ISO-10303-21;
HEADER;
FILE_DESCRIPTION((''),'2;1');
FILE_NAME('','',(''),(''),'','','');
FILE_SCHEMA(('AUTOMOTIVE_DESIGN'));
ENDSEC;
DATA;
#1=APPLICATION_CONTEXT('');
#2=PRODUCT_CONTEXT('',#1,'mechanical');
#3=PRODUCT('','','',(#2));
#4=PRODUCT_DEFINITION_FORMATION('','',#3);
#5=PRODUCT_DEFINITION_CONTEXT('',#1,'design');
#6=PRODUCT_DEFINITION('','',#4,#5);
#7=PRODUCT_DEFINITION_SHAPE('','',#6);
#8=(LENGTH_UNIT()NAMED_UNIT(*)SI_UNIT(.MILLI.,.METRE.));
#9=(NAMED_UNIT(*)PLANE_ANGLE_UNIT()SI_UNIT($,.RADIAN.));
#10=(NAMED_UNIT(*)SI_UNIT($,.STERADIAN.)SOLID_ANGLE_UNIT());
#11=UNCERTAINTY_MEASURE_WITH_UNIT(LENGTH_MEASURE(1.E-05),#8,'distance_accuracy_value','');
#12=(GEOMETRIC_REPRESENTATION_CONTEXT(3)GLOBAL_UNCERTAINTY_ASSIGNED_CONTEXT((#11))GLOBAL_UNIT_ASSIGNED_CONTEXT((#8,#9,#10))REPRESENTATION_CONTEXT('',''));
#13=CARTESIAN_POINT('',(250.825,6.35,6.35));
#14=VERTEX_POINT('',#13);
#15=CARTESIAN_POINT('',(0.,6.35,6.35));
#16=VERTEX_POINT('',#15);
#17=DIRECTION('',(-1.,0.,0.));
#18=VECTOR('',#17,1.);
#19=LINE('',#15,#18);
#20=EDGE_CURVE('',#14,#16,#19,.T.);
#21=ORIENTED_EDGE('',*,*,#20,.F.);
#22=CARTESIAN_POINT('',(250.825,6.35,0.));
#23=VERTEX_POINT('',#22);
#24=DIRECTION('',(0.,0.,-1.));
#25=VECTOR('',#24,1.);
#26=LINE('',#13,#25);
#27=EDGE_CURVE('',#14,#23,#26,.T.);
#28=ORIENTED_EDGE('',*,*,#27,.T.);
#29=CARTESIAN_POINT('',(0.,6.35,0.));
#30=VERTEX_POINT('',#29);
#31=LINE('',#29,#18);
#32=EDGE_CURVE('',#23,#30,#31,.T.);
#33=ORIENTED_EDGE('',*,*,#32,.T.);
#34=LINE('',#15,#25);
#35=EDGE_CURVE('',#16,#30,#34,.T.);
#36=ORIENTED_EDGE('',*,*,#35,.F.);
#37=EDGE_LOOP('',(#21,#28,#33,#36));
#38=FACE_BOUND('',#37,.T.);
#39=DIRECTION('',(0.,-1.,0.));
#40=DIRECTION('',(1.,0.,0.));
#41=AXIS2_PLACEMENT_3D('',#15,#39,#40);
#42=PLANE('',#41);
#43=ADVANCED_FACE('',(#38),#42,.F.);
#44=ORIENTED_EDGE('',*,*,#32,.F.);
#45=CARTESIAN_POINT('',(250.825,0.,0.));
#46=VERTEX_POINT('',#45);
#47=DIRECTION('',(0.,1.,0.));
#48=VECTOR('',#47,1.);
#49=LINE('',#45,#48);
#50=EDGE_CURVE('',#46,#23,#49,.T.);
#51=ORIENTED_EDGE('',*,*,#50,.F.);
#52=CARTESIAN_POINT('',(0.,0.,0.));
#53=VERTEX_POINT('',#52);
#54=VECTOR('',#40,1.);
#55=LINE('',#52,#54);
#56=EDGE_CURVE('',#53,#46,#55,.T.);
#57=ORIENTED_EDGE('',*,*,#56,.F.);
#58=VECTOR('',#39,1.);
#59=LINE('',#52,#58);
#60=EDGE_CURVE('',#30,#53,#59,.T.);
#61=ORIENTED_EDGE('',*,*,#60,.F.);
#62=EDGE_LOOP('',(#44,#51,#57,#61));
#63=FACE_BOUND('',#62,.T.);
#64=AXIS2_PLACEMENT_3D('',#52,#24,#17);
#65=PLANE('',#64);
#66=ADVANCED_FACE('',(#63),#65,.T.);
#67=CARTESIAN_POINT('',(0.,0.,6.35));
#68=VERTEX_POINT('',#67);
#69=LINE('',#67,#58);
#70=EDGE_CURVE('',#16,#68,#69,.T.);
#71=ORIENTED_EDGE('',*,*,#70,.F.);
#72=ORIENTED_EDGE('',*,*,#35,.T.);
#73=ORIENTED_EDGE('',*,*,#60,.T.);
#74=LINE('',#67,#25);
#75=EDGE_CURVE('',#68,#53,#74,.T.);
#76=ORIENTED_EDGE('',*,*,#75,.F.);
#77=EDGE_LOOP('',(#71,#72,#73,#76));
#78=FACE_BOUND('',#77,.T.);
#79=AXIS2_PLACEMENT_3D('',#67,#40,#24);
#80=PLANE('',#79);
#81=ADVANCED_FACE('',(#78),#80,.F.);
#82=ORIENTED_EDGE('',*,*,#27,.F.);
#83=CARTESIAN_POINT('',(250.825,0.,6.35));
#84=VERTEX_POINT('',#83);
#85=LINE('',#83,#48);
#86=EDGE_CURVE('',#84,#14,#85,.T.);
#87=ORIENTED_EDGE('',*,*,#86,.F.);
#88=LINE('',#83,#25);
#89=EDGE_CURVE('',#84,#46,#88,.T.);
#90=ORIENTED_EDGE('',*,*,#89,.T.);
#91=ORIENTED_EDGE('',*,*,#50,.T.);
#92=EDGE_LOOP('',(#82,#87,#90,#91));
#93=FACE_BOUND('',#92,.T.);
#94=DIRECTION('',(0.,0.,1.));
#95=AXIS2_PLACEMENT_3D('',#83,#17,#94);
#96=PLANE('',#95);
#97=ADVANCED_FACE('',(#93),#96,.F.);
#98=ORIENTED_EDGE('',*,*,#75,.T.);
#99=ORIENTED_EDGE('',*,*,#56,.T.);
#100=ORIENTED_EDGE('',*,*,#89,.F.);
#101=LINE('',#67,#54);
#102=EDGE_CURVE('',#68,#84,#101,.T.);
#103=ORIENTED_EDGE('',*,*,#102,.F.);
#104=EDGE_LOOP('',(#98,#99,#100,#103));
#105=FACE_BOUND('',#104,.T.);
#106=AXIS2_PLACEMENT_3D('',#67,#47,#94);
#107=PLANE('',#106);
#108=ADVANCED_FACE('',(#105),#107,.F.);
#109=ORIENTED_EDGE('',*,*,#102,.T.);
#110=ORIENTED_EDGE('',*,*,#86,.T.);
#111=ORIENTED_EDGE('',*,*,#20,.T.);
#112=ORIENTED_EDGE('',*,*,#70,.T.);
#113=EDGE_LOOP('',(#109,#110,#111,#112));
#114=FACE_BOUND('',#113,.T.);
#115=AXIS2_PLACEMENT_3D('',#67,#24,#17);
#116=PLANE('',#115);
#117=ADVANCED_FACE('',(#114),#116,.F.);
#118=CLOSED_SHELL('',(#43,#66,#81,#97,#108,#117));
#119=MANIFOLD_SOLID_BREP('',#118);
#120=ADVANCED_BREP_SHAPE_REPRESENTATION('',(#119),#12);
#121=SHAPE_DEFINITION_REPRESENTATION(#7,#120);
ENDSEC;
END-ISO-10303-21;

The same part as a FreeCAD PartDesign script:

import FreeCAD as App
import Part
import Sketcher
from FreeCAD import Vector
Q = App.Units.Quantity

doc = App.newDocument("Part")
params = doc.addObject("Spreadsheet::Sheet", "Params")
for row, (alias, value) in enumerate([
    ("sketch1_height", "0.25 in"),
    ("sketch1_width", "9.875 in"),
    ("pad1_length", "0.25 in"),
], start=1):
    params.set(f"A{row}", alias)
    params.set(f"B{row}", "=" + value)
    params.setAlias(f"B{row}", alias)

body = doc.addObject("PartDesign::Body", "Body")

sketch1 = body.newObject("Sketcher::SketchObject", "Sketch")
sketch1.AttachmentSupport = (doc.getObject("XY_Plane"), [""])
sketch1.MapMode = "FlatFace"
sketch1.addGeometry([
    Part.LineSegment(Vector(0, 6, 0), Vector(0, 0, 0)),
    Part.LineSegment(Vector(0, 0, 0), Vector(251, 0, 0)),
    Part.LineSegment(Vector(251, 0, 0), Vector(251, 6, 0)),
    Part.LineSegment(Vector(251, 6, 0), Vector(0, 6, 0)),
], False)
sketch1.addConstraint([
    Sketcher.Constraint("Coincident", 0, 2, 1, 1),
    Sketcher.Constraint("Coincident", 1, 2, 2, 1),
    Sketcher.Constraint("Coincident", 2, 2, 3, 1),
    Sketcher.Constraint("Coincident", 3, 2, 0, 1),
    Sketcher.Constraint("Vertical", 0),
    Sketcher.Constraint("Horizontal", 1),
    Sketcher.Constraint("Vertical", 2),
    Sketcher.Constraint("Horizontal", 3),
    Sketcher.Constraint("Coincident", 0, 2, -1, 1),
    Sketcher.Constraint("DistanceY", 0, 2, 0, 1, Q("0.25 in")),
    Sketcher.Constraint("DistanceX", 1, 1, 1, 2, Q("9.875 in")),
])
sketch1.setExpression("Constraints[9]", "Params.sketch1_height")
sketch1.setExpression("Constraints[10]", "Params.sketch1_width")
pad1 = body.newObject("PartDesign::Pad", "Pad")
pad1.Profile = sketch1
pad1.setExpression("Length", "Params.pad1_length")

doc.recompute()
